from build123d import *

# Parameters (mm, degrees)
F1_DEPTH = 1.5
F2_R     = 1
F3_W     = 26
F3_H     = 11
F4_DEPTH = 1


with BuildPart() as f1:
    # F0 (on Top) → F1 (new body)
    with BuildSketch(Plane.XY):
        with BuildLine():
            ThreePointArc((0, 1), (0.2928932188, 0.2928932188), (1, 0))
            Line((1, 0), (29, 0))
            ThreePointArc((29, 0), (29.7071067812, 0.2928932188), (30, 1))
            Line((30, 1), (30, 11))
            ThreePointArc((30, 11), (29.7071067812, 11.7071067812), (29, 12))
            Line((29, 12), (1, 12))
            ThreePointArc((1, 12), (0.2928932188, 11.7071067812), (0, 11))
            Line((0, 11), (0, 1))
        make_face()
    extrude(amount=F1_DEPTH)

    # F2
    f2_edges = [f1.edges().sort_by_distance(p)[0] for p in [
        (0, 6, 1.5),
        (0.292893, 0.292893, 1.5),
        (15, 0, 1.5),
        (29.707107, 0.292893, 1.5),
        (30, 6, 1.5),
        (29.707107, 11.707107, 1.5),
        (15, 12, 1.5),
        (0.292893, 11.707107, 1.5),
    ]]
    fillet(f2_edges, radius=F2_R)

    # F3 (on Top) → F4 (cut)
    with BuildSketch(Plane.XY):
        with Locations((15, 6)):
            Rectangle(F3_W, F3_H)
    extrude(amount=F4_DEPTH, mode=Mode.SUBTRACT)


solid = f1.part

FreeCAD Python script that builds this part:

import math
import FreeCAD as App
import Part
import Sketcher

V = App.Vector


def edges_at(feature, points):
    """Names of the edges that pass closest to the given points."""
    edges = feature.Shape.Edges
    near = lambda p: min(range(len(edges)), key=lambda i: edges[i].distToShape(Part.Vertex(*p))[0])
    return sorted({f"Edge{near(p) + 1}" for p in points})

doc = App.newDocument("Part")
body = doc.addObject("PartDesign::Body", "Body")

# Sketch on XY plane
sketch1 = doc.addObject("Sketcher::SketchObject", "Sketch")
body.addObject(sketch1)
sketch1.AttachmentSupport = (doc.XY_Plane, [""])
sketch1.MapMode = "FlatFace"
sketch1.addGeometry([
    Part.ArcOfCircle(Part.Circle(V(1, 1, 0), V(0, 0, 1), 1), math.radians(180), math.radians(270)),  # 0
    Part.LineSegment(V(1, 0, 0), V(29, 0, 0)),  # 1
    Part.ArcOfCircle(Part.Circle(V(29, 1, 0), V(0, 0, 1), 1), math.radians(-90), math.radians(0)),  # 2
    Part.LineSegment(V(30, 1, 0), V(30, 11, 0)),  # 3
    Part.ArcOfCircle(Part.Circle(V(29, 11, 0), V(0, 0, 1), 1), math.radians(0), math.radians(90)),  # 4
    Part.LineSegment(V(29, 12, 0), V(1, 12, 0)),  # 5
    Part.ArcOfCircle(Part.Circle(V(1, 11, 0), V(0, 0, 1), 1), math.radians(90), math.radians(180)),  # 6
    Part.LineSegment(V(0, 11, 0), V(0, 1, 0)),  # 7
], False)
sketch1.addConstraint([
    Sketcher.Constraint("Tangent", 0, 2, 1, 1),
    Sketcher.Constraint("Tangent", 1, 2, 2, 1),
    Sketcher.Constraint("Tangent", 2, 2, 3, 1),
    Sketcher.Constraint("Tangent", 3, 2, 4, 1),
    Sketcher.Constraint("Tangent", 4, 2, 5, 1),
    Sketcher.Constraint("Tangent", 5, 2, 6, 1),
    Sketcher.Constraint("Tangent", 6, 2, 7, 1),
    Sketcher.Constraint("Tangent", 7, 2, 0, 1),
    Sketcher.Constraint("Horizontal", 1),
    Sketcher.Constraint("Vertical", 3),
    Sketcher.Constraint("Horizontal", 5),
    Sketcher.Constraint("Vertical", 7),
    Sketcher.Constraint("Equal", 0, 2),
    Sketcher.Constraint("Equal", 2, 4),
    Sketcher.Constraint("Equal", 4, 6),
    Sketcher.Constraint("PointOnObject", 0, 2, -1),
    Sketcher.Constraint("PointOnObject", 6, 2, -2),
    Sketcher.Constraint("Radius", 0, 1.0),
    Sketcher.Constraint("DistanceX", 1, 1, 1, 2, 28.0),
    Sketcher.Constraint("DistanceY", 3, 1, 3, 2, 10.0),
])
pad1 = doc.addObject("PartDesign::Pad", "Pad")
body.addObject(pad1)
pad1.Profile = sketch1
pad1.Length = 1.5
doc.recompute()

fillet = doc.addObject("PartDesign::Fillet", "Fillet")
body.addObject(fillet)
fillet.Base = (pad1, edges_at(pad1, [
    (0, 6, 1.5),
    (0.293, 0.293, 1.5),
    (15, 0, 1.5),
    (29.707, 0.293, 1.5),
    (30, 6, 1.5),
    (29.707, 11.707, 1.5),
    (15, 12, 1.5),
    (0.293, 11.707, 1.5),
]))
fillet.Radius = 1

# Sketch on XY plane
sketch2 = doc.addObject("Sketcher::SketchObject", "Sketch001")
body.addObject(sketch2)
sketch2.AttachmentSupport = (doc.XY_Plane, [""])
sketch2.MapMode = "FlatFace"
sketch2.addGeometry([
    Part.LineSegment(V(2, 12, 0), V(2, 0, 0)),
    Part.LineSegment(V(2, 0, 0), V(28, 0, 0)),
    Part.LineSegment(V(28, 0, 0), V(28, 12, 0)),
    Part.LineSegment(V(28, 12, 0), V(2, 12, 0)),
], False)
sketch2.addConstraint([
    Sketcher.Constraint("Coincident", 0, 2, 1, 1),
    Sketcher.Constraint("Coincident", 1, 2, 2, 1),
    Sketcher.Constraint("Coincident", 2, 2, 3, 1),
    Sketcher.Constraint("Coincident", 3, 2, 0, 1),
    Sketcher.Constraint("Vertical", 0),
    Sketcher.Constraint("Horizontal", 1),
    Sketcher.Constraint("Vertical", 2),
    Sketcher.Constraint("Horizontal", 3),
    Sketcher.Constraint("DistanceX", 1, 1, 1, 2, 26.0),
    Sketcher.Constraint("DistanceY", 0, 2, 0, 1, 11.0),
    Sketcher.Constraint("DistanceX", -1, 1, 0, 2, 2.0),
    Sketcher.Constraint("DistanceY", -1, 1, 0, 2, 0.5),
])
pocket1 = doc.addObject("PartDesign::Pocket", "Pocket")
body.addObject(pocket1)
pocket1.Profile = sketch2
pocket1.Length = 1
pocket1.Reversed = True

doc.recompute()
